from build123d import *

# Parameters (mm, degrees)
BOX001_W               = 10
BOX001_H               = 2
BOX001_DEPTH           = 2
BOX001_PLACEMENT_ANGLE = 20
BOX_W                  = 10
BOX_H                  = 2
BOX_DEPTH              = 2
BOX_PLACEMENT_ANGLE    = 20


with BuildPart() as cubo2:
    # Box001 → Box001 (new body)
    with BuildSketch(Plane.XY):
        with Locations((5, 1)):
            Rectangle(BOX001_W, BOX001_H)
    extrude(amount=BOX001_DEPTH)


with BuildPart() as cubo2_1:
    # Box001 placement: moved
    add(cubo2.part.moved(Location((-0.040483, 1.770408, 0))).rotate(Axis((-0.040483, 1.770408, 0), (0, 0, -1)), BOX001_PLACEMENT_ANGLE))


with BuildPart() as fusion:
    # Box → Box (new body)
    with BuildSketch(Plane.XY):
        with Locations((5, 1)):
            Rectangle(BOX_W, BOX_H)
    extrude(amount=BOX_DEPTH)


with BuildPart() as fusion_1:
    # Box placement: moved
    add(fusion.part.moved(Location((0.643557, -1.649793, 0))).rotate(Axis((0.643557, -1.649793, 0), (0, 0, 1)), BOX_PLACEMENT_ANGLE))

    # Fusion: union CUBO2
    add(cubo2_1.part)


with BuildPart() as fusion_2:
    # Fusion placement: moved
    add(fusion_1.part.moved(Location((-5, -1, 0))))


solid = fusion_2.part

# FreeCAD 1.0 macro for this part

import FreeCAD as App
import Part
import Sketcher

V = App.Vector
Q = App.Units.Quantity

doc = App.newDocument("Part")
body = doc.addObject("PartDesign::Body", "Body")

# Sketch on XY plane
sketch1 = body.newObject("Sketcher::SketchObject", "Sketch")
sketch1.AttachmentSupport = (doc.getObject("XY_Plane"), [""])
sketch1.MapMode = "FlatFace"
sketch1.addGeometry([
    Part.LineSegment(V(0, 2, 0), V(0, 0, 0)),
    Part.LineSegment(V(0, 0, 0), V(10, 0, 0)),
    Part.LineSegment(V(10, 0, 0), V(10, 2, 0)),
    Part.LineSegment(V(10, 2, 0), V(0, 2, 0)),
], False)
sketch1.addConstraint([
    Sketcher.Constraint("Coincident", 0, 2, 1, 1),
    Sketcher.Constraint("Coincident", 1, 2, 2, 1),
    Sketcher.Constraint("Coincident", 2, 2, 3, 1),
    Sketcher.Constraint("Coincident", 3, 2, 0, 1),
    Sketcher.Constraint("Vertical", 0),
    Sketcher.Constraint("Horizontal", 1),
    Sketcher.Constraint("Vertical", 2),
    Sketcher.Constraint("Horizontal", 3),
    Sketcher.Constraint("Coincident", 0, 2, -1, 1),
    Sketcher.Constraint("DistanceX", 1, 1, 1, 2, Q("10 mm")),
    Sketcher.Constraint("DistanceY", 0, 2, 0, 1, Q("2 mm")),
])
pad1 = body.newObject("PartDesign::Pad", "Pad")
pad1.Profile = sketch1
pad1.Length = 2
body2 = doc.addObject("PartDesign::Body", "Body001")
doc.recompute()

body.Placement = App.Placement(V(-0.040483, 1.770408, 0), App.Rotation(V(0, 0, -1), 20))
boolean = body2.newObject("PartDesign::Boolean", "Boolean")
boolean.Type = "Fuse"
boolean.addObjects([body])
body3 = doc.addObject("PartDesign::Body", "Body002")

# Sketch on XY plane
sketch2 = body3.newObject("Sketcher::SketchObject", "Sketch001")
sketch2.AttachmentSupport = (doc.getObject("XY_Plane002"), [""])
sketch2.MapMode = "FlatFace"
sketch2.addGeometry([
    Part.LineSegment(V(0, 2, 0), V(0, 0, 0)),
    Part.LineSegment(V(0, 0, 0), V(10, 0, 0)),
    Part.LineSegment(V(10, 0, 0), V(10, 2, 0)),
    Part.LineSegment(V(10, 2, 0), V(0, 2, 0)),
], False)
sketch2.addConstraint([
    Sketcher.Constraint("Coincident", 0, 2, 1, 1),
    Sketcher.Constraint("Coincident", 1, 2, 2, 1),
    Sketcher.Constraint("Coincident", 2, 2, 3, 1),
    Sketcher.Constraint("Coincident", 3, 2, 0, 1),
    Sketcher.Constraint("Vertical", 0),
    Sketcher.Constraint("Horizontal", 1),
    Sketcher.Constraint("Vertical", 2),
    Sketcher.Constraint("Horizontal", 3),
    Sketcher.Constraint("Coincident", 0, 2, -1, 1),
    Sketcher.Constraint("DistanceX", 1, 1, 1, 2, Q("10 mm")),
    Sketcher.Constraint("DistanceY", 0, 2, 0, 1, Q("2 mm")),
])
pad2 = body3.newObject("PartDesign::Pad", "Pad001")
pad2.Profile = sketch2
pad2.Length = 2
body4 = doc.addObject("PartDesign::Body", "Body003")
doc.recompute()

body3.Placement = App.Placement(V(0.643557, -1.649793, 0), App.Rotation(V(0, 0, 1), 20))
boolean2 = body4.newObject("PartDesign::Boolean", "Boolean001")
boolean2.Type = "Fuse"
boolean2.addObjects([body3])
doc.recompute()

boolean3 = body4.newObject("PartDesign::Boolean", "Boolean002")
boolean3.Type = "Fuse"
boolean3.addObjects([body2])
body5 = doc.addObject("PartDesign::Body", "Body004")
doc.recompute()

body4.Placement = App.Placement(V(-5, -1, 0), App.Rotation(V(0, 0, 1), 0))
boolean4 = body5.newObject("PartDesign::Boolean", "Boolean003")
boolean4.Type = "Fuse"
boolean4.addObjects([body4])

doc.recompute()
